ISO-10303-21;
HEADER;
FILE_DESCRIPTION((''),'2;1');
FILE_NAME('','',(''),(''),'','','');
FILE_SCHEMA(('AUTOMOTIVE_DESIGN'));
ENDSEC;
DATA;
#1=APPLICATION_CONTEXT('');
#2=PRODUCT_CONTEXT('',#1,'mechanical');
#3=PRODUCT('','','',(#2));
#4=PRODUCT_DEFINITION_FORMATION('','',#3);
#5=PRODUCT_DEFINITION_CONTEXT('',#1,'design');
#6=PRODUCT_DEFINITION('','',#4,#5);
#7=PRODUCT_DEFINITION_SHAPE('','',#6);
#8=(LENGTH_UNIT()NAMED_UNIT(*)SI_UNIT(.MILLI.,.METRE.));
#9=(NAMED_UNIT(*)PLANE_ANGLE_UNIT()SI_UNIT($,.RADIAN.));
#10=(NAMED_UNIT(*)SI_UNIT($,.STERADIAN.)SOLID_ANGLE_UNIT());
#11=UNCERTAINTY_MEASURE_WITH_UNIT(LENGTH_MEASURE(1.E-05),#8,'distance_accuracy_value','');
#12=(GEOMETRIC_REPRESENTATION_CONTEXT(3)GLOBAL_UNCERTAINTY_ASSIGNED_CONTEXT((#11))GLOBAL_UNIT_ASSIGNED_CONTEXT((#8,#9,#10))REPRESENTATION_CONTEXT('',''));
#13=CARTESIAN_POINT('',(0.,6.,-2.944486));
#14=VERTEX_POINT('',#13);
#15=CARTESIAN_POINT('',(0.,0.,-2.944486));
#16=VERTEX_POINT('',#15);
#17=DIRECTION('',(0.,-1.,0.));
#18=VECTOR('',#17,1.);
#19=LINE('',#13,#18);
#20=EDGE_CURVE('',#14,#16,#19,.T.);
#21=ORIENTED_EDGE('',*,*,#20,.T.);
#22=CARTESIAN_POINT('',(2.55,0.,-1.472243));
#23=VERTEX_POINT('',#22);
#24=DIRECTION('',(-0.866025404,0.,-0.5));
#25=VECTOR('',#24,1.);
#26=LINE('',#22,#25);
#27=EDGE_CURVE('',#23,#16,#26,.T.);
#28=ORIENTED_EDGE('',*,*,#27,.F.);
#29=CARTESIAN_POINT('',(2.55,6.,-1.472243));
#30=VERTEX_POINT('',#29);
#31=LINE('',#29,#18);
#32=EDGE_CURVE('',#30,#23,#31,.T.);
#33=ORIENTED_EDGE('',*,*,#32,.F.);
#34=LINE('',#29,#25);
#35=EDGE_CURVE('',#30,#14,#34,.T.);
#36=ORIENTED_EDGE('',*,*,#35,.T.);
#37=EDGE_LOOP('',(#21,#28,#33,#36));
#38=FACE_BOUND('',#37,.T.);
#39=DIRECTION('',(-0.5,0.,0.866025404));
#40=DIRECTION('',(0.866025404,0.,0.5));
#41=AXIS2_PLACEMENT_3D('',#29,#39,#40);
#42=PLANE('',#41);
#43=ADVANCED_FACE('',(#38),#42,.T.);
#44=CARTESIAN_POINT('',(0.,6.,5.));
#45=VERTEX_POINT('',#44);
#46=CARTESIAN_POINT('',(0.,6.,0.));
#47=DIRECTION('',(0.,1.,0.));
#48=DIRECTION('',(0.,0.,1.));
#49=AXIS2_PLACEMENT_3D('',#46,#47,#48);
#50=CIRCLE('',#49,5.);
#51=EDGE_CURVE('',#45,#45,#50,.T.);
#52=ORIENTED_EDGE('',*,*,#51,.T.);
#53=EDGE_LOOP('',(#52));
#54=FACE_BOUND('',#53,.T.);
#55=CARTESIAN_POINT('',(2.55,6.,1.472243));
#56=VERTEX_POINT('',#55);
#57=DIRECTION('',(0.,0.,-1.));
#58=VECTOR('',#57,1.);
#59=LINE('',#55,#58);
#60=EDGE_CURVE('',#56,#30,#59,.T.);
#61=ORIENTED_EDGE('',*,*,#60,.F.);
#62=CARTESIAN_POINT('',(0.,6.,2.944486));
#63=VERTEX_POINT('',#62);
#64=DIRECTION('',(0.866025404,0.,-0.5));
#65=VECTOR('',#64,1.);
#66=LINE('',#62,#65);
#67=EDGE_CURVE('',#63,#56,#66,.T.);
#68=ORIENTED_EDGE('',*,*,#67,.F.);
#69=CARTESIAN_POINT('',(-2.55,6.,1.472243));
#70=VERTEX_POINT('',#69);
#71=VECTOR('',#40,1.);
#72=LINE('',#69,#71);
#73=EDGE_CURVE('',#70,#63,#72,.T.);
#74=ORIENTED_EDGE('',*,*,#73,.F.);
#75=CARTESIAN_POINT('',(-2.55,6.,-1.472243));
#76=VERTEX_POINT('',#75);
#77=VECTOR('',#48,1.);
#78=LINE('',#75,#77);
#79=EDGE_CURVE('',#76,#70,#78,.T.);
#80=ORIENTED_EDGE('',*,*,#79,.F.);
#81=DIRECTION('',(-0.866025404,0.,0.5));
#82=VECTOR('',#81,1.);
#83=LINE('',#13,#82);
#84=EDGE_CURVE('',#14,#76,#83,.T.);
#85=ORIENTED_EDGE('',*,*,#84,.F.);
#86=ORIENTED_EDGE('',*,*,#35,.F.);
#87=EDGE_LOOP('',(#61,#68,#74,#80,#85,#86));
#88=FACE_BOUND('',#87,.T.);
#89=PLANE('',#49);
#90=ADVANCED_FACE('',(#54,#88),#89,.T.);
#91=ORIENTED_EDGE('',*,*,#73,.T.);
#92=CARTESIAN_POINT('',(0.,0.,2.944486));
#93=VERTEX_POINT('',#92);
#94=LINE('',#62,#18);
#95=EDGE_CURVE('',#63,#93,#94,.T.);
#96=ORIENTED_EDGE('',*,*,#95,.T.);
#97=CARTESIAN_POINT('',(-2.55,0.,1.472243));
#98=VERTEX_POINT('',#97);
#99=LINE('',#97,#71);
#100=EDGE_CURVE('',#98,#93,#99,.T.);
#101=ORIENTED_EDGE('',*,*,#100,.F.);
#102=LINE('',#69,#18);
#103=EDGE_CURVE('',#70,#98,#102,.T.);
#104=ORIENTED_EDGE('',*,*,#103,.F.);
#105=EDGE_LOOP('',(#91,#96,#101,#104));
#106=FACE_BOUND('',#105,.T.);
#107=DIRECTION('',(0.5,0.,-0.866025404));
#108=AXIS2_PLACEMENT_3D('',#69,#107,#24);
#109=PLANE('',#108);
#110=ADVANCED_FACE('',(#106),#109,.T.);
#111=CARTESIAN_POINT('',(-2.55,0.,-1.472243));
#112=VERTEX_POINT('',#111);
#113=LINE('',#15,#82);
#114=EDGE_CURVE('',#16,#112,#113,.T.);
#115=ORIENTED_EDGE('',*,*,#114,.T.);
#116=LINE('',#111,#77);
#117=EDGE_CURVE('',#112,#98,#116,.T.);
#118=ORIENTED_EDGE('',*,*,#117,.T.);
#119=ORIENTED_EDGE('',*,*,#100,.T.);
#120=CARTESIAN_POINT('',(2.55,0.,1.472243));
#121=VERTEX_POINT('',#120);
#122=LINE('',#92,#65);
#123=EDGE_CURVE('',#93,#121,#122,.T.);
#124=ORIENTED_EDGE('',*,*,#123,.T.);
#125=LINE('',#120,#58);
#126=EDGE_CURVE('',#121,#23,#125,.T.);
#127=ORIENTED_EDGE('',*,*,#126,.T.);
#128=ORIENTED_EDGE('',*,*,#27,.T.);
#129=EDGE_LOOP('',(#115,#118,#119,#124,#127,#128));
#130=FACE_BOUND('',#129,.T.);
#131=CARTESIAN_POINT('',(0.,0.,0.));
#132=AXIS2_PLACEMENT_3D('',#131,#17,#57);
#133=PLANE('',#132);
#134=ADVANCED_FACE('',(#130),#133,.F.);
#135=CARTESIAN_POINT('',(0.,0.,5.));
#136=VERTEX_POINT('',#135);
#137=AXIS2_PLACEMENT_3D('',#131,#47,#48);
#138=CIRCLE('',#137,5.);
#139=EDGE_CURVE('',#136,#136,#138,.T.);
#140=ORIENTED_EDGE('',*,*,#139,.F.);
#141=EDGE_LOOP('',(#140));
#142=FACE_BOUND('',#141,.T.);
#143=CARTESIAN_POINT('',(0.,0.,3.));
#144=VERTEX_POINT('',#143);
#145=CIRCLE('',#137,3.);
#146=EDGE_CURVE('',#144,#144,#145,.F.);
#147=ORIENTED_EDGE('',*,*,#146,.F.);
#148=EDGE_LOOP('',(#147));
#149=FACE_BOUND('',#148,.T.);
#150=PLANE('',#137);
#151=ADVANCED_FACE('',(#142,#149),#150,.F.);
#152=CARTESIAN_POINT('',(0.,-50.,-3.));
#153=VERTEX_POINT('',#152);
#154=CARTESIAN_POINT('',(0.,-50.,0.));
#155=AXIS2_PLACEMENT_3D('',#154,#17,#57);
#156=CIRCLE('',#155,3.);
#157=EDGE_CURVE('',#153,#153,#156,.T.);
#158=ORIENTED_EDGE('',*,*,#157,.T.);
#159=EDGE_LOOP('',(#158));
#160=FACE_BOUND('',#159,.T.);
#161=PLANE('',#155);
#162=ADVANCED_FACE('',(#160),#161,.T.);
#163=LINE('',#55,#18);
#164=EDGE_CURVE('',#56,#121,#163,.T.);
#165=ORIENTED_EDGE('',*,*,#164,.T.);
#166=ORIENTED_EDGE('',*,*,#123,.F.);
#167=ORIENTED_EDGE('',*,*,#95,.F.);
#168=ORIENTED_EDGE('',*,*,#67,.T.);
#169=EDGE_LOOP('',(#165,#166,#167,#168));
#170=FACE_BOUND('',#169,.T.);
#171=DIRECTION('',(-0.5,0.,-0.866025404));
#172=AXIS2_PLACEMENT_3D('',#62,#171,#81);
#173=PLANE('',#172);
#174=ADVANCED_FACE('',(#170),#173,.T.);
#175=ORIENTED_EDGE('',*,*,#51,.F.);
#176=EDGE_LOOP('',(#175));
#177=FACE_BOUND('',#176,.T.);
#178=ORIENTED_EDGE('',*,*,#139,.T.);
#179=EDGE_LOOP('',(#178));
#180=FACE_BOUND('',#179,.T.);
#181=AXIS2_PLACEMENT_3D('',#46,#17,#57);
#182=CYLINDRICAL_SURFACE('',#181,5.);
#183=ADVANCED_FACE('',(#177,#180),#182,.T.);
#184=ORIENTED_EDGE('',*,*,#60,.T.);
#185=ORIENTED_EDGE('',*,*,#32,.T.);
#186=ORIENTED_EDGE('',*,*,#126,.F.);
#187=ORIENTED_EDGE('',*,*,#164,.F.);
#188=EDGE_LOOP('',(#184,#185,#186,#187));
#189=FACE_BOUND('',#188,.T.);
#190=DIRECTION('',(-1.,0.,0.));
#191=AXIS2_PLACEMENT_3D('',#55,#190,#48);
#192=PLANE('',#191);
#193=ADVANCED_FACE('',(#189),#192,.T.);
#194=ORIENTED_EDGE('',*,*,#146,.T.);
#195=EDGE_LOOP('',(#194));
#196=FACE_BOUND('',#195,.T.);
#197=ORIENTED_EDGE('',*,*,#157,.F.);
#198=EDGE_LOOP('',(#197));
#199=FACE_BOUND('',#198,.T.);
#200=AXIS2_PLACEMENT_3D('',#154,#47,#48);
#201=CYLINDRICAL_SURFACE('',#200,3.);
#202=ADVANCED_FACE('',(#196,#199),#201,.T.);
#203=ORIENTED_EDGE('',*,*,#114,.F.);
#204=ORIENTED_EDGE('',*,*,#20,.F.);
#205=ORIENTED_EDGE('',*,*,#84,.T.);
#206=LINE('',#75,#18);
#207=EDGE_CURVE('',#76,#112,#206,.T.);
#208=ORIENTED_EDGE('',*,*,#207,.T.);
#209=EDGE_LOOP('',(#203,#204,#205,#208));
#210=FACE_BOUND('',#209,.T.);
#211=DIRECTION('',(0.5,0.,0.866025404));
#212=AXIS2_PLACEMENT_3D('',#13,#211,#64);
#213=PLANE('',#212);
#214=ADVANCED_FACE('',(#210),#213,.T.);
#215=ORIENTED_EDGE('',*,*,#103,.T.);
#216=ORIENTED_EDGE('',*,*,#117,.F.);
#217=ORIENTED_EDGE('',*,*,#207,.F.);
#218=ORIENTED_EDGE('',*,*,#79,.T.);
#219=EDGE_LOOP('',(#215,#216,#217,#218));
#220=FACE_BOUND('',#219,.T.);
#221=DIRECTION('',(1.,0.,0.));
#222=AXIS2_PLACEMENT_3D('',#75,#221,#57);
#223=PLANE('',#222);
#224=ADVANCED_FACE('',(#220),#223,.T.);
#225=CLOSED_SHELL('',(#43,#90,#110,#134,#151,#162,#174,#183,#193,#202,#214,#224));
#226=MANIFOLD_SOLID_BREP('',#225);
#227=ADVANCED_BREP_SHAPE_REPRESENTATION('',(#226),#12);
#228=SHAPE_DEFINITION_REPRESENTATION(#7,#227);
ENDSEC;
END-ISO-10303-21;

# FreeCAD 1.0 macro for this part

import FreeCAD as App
import Part
import Sketcher

V = App.Vector
Q = App.Units.Quantity

doc = App.newDocument("Part")
body = doc.addObject("PartDesign::Body", "Body")

# Sketch on XZ plane
sketch1 = doc.addObject("Sketcher::SketchObject", "Sketch")
body.addObject(sketch1)
sketch1.AttachmentSupport = (doc.XZ_Plane, [""])
sketch1.MapMode = "FlatFace"
sketch1.addGeometry([
    Part.Circle(V(0, 0, 0), V(0, 0, 1), 5),  # 0
    Part.LineSegment(V(2.5, 1.5, 0), V(0, 2.9, 0)),  # 1
    Part.LineSegment(V(0, 2.9, 0), V(-2.5, 1.5, 0)),  # 2
    Part.LineSegment(V(-2.5, 1.5, 0), V(-2.5, -1.5, 0)),  # 3
    Part.LineSegment(V(-2.5, -1.5, 0), V(0, -2.9, 0)),  # 4
    Part.LineSegment(V(0, -2.9, 0), V(2.5, -1.5, 0)),  # 5
    Part.LineSegment(V(2.5, -1.5, 0), V(2.5, 1.5, 0)),  # 6
], False)
sketch1.addConstraint([
    Sketcher.Constraint("Coincident", 1, 2, 2, 1),
    Sketcher.Constraint("Coincident", 2, 2, 3, 1),
    Sketcher.Constraint("Coincident", 3, 2, 4, 1),
    Sketcher.Constraint("Coincident", 4, 2, 5, 1),
    Sketcher.Constraint("Coincident", 5, 2, 6, 1),
    Sketcher.Constraint("Coincident", 6, 2, 1, 1),
    Sketcher.Constraint("Vertical", 3),
    Sketcher.Constraint("Vertical", 6),
    Sketcher.Constraint("Coincident", 0, 3, -1, 1),
    Sketcher.Constraint("Symmetric", 1, 2, 4, 2, -1, 1),
    Sketcher.Constraint("Symmetric", 2, 2, 5, 2, -1, 1),
    Sketcher.Constraint("PointOnObject", 1, 2, -2),
    Sketcher.Constraint("Parallel", 1, 4),
    Sketcher.Constraint("Horizontal", 3, 2, 5, 2),
    Sketcher.Constraint("Diameter", 0, 10.0),
    Sketcher.Constraint("Angle", 1, Q("150 deg")),
    Sketcher.Constraint("DistanceX", 3, 2, 5, 2, 5.1),
    Sketcher.Constraint("DistanceY", 3, 2, 3, 1, 2.944486),
])
pad1 = doc.addObject("PartDesign::Pad", "Pad")
body.addObject(pad1)
pad1.Profile = sketch1
pad1.Length = 6
pad1.Reversed = True

# Sketch on XZ plane
sketch2 = doc.addObject("Sketcher::SketchObject", "Sketch001")
body.addObject(sketch2)
sketch2.AttachmentSupport = (doc.XZ_Plane, [""])
sketch2.MapMode = "FlatFace"
sketch2.addGeometry(Part.Circle(V(0, 0, 0), V(0, 0, 1), 3), False)
sketch2.addConstraint([
    Sketcher.Constraint("Coincident", 0, 3, -1, 1),
    Sketcher.Constraint("Diameter", 0, 6.0),
])
pad2 = doc.addObject("PartDesign::Pad", "Pad001")
body.addObject(pad2)
pad2.Profile = sketch2
pad2.Length = 50

doc.recompute()
